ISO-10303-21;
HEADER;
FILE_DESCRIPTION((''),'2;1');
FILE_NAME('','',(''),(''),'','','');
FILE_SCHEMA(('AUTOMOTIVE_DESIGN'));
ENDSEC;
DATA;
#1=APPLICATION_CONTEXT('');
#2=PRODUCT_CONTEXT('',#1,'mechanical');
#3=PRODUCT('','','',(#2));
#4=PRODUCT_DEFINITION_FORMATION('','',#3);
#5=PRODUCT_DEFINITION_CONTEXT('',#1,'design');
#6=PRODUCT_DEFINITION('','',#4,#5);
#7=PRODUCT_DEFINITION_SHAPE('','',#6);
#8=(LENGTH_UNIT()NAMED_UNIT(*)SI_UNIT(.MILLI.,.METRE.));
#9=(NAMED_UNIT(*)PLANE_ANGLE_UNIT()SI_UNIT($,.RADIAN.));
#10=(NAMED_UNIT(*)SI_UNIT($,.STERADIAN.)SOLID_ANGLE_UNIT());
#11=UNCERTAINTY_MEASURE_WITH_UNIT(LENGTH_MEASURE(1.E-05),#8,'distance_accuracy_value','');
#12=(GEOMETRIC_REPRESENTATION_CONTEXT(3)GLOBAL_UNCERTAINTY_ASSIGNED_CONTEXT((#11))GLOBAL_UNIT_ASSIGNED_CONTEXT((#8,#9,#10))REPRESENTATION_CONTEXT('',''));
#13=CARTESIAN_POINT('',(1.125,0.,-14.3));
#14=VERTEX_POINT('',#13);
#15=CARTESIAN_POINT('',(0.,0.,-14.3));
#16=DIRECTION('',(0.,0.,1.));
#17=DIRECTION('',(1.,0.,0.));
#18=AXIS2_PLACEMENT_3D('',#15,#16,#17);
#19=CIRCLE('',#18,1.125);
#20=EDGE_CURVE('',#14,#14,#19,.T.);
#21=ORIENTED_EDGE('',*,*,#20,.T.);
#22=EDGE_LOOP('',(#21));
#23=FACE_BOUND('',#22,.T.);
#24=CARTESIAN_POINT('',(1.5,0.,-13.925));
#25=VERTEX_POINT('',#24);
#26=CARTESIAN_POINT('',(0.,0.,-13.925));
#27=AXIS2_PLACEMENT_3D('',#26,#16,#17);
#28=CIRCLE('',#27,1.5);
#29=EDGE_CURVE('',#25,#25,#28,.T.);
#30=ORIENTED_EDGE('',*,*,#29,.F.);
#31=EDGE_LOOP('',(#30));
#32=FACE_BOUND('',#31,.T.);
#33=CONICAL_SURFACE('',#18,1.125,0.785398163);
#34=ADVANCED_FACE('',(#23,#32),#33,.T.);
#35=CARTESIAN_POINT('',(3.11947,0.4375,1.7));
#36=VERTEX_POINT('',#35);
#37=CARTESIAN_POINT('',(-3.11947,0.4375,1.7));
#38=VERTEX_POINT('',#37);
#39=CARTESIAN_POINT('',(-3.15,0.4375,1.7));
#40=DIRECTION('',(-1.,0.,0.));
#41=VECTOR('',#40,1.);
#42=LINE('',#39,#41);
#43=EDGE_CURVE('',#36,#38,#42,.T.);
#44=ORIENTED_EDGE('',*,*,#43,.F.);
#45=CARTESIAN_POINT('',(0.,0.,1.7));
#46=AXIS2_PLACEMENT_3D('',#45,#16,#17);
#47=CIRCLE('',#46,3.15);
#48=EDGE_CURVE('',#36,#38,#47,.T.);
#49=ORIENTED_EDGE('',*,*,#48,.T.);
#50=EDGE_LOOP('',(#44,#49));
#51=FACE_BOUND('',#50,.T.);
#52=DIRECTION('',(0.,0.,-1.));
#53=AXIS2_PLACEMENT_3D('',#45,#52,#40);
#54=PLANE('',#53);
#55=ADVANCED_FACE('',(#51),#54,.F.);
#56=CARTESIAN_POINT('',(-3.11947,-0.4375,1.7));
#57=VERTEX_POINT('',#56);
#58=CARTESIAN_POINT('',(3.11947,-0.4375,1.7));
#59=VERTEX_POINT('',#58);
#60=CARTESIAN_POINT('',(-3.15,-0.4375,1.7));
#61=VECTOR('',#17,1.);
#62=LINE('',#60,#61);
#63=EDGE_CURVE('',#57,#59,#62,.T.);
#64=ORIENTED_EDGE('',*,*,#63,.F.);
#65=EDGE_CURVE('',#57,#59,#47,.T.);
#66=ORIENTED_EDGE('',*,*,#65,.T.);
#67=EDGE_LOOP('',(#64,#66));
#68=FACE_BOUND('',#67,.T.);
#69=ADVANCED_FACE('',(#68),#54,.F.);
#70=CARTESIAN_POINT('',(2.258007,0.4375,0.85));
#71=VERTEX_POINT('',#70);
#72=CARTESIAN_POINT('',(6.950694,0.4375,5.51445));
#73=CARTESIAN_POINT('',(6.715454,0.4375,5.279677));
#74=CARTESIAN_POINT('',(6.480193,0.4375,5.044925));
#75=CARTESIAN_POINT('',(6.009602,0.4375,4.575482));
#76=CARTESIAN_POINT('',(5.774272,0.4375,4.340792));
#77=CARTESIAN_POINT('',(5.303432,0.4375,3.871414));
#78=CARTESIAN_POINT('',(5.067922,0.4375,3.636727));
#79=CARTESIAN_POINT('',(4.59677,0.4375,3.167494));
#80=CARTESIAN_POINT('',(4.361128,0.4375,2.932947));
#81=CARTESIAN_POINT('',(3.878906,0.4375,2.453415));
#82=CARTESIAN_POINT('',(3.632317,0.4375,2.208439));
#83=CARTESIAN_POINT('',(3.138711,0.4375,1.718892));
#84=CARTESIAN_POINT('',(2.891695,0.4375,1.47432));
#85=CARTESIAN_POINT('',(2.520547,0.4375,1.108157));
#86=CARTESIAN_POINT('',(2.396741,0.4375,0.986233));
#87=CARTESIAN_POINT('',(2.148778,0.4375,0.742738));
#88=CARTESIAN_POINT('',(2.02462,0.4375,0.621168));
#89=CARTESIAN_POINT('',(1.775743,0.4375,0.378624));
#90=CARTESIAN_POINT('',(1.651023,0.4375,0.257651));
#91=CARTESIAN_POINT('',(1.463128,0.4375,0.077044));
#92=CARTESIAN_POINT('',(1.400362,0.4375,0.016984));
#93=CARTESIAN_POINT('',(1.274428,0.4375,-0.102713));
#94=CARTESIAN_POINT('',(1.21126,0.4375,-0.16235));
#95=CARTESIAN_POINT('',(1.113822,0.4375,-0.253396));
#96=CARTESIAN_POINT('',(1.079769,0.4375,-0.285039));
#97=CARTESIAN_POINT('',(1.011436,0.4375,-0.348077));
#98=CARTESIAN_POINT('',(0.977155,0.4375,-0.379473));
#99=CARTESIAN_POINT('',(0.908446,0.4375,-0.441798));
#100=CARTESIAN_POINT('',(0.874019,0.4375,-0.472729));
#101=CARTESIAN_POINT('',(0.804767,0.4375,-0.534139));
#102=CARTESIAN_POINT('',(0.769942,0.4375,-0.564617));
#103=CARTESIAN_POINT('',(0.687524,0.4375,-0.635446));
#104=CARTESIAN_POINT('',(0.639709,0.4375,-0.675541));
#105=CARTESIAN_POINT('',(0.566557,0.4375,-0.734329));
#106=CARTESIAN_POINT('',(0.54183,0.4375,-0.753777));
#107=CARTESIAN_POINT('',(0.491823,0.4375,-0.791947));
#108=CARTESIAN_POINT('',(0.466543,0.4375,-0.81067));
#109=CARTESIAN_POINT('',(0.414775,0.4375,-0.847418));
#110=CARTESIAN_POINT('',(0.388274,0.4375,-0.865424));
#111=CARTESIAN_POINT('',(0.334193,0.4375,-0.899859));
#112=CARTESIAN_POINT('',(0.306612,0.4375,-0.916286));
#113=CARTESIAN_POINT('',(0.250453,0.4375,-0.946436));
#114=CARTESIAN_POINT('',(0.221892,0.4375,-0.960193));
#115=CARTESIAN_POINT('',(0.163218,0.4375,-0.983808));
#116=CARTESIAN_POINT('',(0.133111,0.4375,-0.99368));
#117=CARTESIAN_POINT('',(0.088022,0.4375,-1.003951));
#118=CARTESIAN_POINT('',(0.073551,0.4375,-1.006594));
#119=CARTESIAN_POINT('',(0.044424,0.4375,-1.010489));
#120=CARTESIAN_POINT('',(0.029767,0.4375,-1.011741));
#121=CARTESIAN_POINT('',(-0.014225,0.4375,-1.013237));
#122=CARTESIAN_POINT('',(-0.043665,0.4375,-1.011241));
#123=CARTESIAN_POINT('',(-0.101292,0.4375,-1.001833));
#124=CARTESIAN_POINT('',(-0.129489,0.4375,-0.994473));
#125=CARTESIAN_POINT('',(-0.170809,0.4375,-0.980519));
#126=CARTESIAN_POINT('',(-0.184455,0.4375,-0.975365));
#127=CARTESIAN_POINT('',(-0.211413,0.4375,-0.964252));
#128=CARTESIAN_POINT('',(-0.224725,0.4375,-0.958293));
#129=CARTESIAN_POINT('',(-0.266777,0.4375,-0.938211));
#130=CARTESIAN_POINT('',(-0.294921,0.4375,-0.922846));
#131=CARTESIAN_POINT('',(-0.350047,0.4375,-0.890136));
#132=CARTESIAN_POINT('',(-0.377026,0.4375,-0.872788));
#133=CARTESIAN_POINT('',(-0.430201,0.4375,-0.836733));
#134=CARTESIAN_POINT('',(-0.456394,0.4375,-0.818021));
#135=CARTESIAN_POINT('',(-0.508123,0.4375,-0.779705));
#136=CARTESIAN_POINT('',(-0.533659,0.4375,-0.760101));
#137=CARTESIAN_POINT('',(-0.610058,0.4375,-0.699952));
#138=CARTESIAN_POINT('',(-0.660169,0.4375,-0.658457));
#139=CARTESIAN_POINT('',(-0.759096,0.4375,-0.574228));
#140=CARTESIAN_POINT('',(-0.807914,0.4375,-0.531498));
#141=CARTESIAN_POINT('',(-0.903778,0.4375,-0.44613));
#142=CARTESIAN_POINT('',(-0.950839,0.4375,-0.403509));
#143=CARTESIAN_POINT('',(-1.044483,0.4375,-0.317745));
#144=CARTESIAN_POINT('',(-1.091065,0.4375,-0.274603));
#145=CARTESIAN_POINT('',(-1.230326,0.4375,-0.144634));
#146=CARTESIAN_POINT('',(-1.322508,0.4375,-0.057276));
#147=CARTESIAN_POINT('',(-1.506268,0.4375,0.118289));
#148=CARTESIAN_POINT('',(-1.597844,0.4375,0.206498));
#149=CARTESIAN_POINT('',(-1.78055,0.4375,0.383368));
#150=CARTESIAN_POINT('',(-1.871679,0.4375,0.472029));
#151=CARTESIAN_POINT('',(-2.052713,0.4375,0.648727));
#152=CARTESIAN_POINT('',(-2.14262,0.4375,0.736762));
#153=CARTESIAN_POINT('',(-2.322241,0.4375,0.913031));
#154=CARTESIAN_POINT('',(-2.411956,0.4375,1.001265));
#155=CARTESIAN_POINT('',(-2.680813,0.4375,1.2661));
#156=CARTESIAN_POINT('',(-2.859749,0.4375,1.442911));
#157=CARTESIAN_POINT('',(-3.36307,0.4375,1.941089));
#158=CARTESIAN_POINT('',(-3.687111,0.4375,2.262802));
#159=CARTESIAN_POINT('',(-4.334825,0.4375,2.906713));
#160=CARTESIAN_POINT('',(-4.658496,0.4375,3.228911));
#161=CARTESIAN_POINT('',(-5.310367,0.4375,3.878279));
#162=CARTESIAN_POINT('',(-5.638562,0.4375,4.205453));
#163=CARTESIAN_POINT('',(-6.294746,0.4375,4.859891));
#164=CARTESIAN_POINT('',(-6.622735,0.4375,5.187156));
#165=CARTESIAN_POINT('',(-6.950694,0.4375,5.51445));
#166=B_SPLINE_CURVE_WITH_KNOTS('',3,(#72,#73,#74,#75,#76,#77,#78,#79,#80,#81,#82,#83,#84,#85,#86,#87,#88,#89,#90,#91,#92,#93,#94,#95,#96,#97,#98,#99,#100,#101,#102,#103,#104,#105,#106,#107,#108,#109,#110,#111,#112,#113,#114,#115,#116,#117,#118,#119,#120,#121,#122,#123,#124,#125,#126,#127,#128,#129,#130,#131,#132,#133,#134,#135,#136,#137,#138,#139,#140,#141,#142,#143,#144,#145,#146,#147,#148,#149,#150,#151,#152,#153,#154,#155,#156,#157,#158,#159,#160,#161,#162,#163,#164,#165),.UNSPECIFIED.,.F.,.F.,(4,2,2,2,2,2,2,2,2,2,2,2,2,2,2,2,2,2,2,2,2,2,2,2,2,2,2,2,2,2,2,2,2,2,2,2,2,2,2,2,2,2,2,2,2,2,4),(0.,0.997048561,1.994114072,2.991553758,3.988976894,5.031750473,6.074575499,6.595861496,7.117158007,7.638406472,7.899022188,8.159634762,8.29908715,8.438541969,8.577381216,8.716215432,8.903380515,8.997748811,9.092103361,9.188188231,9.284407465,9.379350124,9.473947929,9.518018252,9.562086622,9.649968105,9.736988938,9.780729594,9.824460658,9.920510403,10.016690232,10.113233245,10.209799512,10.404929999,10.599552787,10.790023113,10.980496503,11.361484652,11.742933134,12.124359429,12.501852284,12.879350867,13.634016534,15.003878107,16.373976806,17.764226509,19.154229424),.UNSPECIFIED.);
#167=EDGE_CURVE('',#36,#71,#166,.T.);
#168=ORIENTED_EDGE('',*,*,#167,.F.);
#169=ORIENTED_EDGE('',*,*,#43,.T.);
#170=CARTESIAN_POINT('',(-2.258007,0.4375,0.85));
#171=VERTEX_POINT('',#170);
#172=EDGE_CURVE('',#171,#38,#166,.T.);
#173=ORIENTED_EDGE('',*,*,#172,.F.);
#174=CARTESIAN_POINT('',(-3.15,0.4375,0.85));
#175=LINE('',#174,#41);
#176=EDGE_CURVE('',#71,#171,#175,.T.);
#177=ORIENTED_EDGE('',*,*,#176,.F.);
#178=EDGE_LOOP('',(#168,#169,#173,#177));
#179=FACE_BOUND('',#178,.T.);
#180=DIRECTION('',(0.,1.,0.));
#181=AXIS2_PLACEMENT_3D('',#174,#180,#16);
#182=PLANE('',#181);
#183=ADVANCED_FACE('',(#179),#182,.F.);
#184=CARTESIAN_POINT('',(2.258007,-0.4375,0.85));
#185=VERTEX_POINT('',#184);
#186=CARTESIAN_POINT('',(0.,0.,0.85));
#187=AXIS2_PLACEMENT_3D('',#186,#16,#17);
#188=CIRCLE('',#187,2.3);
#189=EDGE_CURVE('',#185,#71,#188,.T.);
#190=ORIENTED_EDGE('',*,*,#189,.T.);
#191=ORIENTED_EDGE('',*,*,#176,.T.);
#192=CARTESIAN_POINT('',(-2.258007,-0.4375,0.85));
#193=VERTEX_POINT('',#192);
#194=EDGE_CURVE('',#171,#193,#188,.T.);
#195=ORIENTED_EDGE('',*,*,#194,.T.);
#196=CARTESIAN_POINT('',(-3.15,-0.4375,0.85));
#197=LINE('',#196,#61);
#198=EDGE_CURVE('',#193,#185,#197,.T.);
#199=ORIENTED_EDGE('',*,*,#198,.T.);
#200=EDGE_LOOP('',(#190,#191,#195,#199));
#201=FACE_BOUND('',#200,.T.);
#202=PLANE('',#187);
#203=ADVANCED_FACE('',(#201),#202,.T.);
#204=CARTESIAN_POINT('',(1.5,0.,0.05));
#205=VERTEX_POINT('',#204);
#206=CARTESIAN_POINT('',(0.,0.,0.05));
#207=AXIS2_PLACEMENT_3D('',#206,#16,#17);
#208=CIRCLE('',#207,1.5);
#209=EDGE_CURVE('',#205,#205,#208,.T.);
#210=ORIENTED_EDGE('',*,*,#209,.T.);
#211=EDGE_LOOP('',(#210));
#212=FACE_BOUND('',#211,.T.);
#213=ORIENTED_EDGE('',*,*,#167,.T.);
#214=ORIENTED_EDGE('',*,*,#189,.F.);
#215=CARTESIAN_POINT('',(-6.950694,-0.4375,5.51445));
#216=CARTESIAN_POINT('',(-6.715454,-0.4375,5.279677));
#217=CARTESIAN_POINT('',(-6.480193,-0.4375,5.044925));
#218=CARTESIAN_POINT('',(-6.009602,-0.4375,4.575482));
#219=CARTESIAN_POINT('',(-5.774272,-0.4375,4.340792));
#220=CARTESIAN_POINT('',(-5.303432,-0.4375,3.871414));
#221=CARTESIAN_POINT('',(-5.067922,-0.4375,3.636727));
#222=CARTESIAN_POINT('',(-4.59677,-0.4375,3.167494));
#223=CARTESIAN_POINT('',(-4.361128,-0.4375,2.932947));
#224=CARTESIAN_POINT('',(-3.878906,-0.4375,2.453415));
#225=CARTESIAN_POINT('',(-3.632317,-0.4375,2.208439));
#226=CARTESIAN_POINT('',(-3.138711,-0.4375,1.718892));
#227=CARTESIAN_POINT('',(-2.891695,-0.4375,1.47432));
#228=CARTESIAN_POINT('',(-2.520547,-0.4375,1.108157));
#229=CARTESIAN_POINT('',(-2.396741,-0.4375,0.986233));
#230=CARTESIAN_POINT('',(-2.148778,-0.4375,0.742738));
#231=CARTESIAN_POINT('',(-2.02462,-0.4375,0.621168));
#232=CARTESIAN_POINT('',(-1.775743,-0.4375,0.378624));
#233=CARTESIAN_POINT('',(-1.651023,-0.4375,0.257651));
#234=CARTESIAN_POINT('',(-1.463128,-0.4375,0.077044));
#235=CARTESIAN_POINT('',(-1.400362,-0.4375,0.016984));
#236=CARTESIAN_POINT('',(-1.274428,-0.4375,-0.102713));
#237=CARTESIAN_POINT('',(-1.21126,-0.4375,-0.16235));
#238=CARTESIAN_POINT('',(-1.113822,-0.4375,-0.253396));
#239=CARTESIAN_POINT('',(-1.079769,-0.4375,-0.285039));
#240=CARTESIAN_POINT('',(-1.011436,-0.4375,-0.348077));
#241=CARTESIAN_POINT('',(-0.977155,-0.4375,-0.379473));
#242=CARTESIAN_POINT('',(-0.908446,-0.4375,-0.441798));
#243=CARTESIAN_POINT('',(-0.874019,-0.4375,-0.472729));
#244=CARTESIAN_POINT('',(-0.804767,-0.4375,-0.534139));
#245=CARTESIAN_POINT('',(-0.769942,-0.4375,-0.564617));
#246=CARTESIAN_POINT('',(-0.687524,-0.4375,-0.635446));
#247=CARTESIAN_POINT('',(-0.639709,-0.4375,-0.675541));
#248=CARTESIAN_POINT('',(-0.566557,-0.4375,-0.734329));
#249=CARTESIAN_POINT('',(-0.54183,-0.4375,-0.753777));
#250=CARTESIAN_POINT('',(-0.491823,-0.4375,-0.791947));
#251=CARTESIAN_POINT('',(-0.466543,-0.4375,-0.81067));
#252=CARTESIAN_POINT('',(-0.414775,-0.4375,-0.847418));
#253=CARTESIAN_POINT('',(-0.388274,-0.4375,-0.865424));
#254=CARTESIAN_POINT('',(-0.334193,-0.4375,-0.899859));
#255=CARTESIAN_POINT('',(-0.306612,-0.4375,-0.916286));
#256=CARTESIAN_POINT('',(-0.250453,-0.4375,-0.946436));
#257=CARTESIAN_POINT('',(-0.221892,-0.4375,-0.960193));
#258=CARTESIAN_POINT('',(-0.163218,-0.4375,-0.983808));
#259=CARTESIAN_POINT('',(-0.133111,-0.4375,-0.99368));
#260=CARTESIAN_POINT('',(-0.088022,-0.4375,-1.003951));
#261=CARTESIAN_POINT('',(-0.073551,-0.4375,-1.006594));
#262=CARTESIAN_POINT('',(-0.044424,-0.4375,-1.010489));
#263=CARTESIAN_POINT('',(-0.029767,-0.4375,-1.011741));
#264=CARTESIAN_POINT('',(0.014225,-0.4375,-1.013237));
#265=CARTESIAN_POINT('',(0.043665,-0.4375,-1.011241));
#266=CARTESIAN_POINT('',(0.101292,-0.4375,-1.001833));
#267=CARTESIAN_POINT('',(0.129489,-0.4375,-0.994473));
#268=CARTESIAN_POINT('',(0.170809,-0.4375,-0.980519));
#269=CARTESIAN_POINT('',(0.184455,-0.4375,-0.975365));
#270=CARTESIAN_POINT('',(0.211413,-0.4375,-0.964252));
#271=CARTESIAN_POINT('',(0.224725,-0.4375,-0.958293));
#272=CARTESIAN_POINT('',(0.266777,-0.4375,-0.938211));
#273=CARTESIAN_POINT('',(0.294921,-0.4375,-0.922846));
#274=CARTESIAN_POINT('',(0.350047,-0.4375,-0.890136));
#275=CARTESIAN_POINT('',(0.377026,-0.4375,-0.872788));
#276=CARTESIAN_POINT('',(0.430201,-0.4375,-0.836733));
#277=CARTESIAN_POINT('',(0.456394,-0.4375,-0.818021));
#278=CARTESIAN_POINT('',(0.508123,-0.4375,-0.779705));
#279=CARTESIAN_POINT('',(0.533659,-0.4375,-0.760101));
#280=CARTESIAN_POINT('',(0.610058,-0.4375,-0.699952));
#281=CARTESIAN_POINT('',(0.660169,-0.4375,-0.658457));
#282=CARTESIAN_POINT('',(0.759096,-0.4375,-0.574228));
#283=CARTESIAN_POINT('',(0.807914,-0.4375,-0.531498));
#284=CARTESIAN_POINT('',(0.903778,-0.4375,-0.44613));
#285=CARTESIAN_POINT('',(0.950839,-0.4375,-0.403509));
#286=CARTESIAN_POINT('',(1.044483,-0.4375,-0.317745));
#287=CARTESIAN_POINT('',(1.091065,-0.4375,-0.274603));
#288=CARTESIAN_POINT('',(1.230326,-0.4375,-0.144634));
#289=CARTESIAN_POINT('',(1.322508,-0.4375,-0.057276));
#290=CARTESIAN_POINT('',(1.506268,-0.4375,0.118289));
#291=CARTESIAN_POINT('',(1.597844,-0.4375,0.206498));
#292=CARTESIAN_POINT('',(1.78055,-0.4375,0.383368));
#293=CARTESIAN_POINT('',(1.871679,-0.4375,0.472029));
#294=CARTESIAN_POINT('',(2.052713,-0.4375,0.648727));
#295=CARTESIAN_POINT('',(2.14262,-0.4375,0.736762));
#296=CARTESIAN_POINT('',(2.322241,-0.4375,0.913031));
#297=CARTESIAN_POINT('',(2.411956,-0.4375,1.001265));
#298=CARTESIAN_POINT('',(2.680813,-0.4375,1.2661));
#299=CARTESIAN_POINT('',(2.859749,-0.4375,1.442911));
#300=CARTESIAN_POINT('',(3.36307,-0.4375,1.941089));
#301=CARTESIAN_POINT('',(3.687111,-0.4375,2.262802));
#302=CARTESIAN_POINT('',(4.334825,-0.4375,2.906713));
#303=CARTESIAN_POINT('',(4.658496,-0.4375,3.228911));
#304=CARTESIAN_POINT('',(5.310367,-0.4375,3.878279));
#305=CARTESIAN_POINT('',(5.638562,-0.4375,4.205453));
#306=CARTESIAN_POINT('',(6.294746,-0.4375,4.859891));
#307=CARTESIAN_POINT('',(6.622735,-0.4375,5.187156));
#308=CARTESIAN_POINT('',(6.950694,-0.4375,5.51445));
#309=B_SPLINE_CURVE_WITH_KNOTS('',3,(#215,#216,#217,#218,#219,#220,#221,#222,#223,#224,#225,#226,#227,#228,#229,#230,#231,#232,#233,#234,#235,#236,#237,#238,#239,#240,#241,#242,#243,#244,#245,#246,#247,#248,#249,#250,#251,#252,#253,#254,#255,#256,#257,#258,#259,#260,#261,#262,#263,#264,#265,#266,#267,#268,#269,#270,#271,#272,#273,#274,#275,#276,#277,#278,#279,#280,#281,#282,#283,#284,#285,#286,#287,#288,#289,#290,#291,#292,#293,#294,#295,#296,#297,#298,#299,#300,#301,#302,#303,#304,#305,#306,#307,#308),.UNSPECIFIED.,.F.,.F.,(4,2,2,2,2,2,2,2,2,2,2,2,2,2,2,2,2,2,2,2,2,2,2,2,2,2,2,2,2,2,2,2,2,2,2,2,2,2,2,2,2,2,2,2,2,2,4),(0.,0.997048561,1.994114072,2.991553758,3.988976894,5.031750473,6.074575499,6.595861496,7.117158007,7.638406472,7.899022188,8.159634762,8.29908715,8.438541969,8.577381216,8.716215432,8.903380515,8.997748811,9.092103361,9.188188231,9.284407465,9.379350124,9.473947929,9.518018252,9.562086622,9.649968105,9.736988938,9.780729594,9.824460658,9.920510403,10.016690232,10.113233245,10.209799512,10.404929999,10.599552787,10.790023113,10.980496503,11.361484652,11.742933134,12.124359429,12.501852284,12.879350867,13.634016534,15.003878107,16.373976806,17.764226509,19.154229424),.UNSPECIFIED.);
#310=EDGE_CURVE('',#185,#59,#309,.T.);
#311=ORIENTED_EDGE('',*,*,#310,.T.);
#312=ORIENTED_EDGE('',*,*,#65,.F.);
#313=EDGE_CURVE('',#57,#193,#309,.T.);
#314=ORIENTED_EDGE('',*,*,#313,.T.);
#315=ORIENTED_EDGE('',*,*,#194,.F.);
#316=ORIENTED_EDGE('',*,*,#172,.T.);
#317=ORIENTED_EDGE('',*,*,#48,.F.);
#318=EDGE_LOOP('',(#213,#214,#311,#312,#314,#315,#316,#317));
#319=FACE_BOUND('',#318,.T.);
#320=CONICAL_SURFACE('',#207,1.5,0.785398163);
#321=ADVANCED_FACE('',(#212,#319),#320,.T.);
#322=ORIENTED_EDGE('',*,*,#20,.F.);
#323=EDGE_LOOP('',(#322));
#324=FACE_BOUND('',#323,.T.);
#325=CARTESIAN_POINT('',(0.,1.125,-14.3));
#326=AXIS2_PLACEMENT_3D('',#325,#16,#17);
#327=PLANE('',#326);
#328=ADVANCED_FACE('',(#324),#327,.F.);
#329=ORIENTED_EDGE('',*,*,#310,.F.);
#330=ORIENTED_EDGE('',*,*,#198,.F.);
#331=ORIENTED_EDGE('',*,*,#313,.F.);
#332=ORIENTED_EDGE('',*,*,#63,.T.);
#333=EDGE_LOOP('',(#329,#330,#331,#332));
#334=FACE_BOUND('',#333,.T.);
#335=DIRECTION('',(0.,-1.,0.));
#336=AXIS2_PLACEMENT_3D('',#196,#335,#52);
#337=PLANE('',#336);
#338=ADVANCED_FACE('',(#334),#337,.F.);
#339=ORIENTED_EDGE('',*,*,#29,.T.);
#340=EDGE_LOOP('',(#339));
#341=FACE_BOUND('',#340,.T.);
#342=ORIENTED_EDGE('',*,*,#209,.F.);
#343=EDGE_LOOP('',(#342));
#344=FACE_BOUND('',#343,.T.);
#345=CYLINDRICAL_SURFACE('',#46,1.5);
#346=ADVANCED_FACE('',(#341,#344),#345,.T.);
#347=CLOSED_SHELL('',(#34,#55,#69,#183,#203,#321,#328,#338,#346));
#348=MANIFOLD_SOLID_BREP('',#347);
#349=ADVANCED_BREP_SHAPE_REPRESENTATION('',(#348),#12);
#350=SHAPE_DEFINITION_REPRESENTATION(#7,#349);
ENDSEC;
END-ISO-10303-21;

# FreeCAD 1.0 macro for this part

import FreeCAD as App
import Part
import Sketcher
Q = App.Units.Quantity

doc = App.newDocument("Part")
body = doc.addObject("PartDesign::Body", "Body")

# Sketch on YZ plane
sketch1 = body.newObject("Sketcher::SketchObject", "Sketch")
sketch1.AttachmentSupport = (doc.getObject("YZ_Plane"), [""])
sketch1.MapMode = "FlatFace"
sketch1.addGeometry([
    Part.LineSegment(App.Vector(1.5, 0.1, 0), App.Vector(3.1, 1.7, 0)),  # 0
    Part.LineSegment(App.Vector(3.1, 1.7, 0), App.Vector(0, 1.7, 0)),  # 1
    Part.LineSegment(App.Vector(0, 1.7, 0), App.Vector(0, -14.3, 0)),  # 2
    Part.LineSegment(App.Vector(0, -14.3, 0), App.Vector(1.1, -14.3, 0)),  # 3
    Part.LineSegment(App.Vector(1.1, -14.3, 0), App.Vector(1.5, -13.9, 0)),  # 4
    Part.LineSegment(App.Vector(1.5, -13.9, 0), App.Vector(1.5, 0.1, 0)),  # 5
], False)
sketch1.addConstraint([
    Sketcher.Constraint("Coincident", 0, 2, 1, 1),
    Sketcher.Constraint("Coincident", 1, 2, 2, 1),
    Sketcher.Constraint("Coincident", 2, 2, 3, 1),
    Sketcher.Constraint("Coincident", 3, 2, 4, 1),
    Sketcher.Constraint("Coincident", 4, 2, 5, 1),
    Sketcher.Constraint("Coincident", 5, 2, 0, 1),
    Sketcher.Constraint("Horizontal", 1),
    Sketcher.Constraint("Vertical", 2),
    Sketcher.Constraint("Horizontal", 3),
    Sketcher.Constraint("Vertical", 5),
    Sketcher.Constraint("PointOnObject", 1, 2, -2),
    Sketcher.Constraint("Parallel", 0, 4),
    Sketcher.Constraint("DistanceY", 2, 2, 2, 1, Q("16 mm")),
    Sketcher.Constraint("Angle", 0, Q("45 deg")),
    Sketcher.Constraint("DistanceX", 1, 2, 1, 1, Q("3.15 mm")),
    Sketcher.Constraint("DistanceY", -1, 1, 0, 2, Q("1.7 mm")),
    Sketcher.Constraint("DistanceX", -1, 1, 4, 2, Q("1.5 mm")),
    Sketcher.Constraint("DistanceX", 3, 1, 3, 2, Q("1.125 mm")),
])
revolution = body.newObject("PartDesign::Revolution", "Revolution")
revolution.Profile = sketch1
revolution.ReferenceAxis = (sketch1, ["V_Axis"])
revolution.Angle = 360

# Sketch on XY plane
sketch2 = body.newObject("Sketcher::SketchObject", "Sketch001")
sketch2.AttachmentSupport = (doc.getObject("XY_Plane"), [""])
sketch2.MapMode = "FlatFace"
sketch2.AttachmentOffset = App.Placement(App.Vector(0, 0, 1.7), App.Rotation())
sketch2.addGeometry([
    Part.LineSegment(App.Vector(-3.1, 0.4, 0), App.Vector(-3.1, -0.4, 0)),
    Part.LineSegment(App.Vector(-3.1, -0.4, 0), App.Vector(3.1, -0.4, 0)),
    Part.LineSegment(App.Vector(3.1, -0.4, 0), App.Vector(3.1, 0.4, 0)),
    Part.LineSegment(App.Vector(3.1, 0.4, 0), App.Vector(-3.1, 0.4, 0)),
], False)
sketch2.addConstraint([
    Sketcher.Constraint("Coincident", 0, 2, 1, 1),
    Sketcher.Constraint("Coincident", 1, 2, 2, 1),
    Sketcher.Constraint("Coincident", 2, 2, 3, 1),
    Sketcher.Constraint("Coincident", 3, 2, 0, 1),
    Sketcher.Constraint("Vertical", 0),
    Sketcher.Constraint("Horizontal", 1),
    Sketcher.Constraint("Vertical", 2),
    Sketcher.Constraint("Horizontal", 3),
    Sketcher.Constraint("Symmetric", 0, 2, 2, 2, -1, 1),
    Sketcher.Constraint("DistanceX", 1, 1, 1, 2, Q("6.3 mm")),
    Sketcher.Constraint("DistanceY", 0, 2, 0, 1, Q("0.875 mm")),
])
pocket1 = body.newObject("PartDesign::Pocket", "Pocket")
pocket1.Profile = sketch2
pocket1.Length = 0.85

doc.recompute()
